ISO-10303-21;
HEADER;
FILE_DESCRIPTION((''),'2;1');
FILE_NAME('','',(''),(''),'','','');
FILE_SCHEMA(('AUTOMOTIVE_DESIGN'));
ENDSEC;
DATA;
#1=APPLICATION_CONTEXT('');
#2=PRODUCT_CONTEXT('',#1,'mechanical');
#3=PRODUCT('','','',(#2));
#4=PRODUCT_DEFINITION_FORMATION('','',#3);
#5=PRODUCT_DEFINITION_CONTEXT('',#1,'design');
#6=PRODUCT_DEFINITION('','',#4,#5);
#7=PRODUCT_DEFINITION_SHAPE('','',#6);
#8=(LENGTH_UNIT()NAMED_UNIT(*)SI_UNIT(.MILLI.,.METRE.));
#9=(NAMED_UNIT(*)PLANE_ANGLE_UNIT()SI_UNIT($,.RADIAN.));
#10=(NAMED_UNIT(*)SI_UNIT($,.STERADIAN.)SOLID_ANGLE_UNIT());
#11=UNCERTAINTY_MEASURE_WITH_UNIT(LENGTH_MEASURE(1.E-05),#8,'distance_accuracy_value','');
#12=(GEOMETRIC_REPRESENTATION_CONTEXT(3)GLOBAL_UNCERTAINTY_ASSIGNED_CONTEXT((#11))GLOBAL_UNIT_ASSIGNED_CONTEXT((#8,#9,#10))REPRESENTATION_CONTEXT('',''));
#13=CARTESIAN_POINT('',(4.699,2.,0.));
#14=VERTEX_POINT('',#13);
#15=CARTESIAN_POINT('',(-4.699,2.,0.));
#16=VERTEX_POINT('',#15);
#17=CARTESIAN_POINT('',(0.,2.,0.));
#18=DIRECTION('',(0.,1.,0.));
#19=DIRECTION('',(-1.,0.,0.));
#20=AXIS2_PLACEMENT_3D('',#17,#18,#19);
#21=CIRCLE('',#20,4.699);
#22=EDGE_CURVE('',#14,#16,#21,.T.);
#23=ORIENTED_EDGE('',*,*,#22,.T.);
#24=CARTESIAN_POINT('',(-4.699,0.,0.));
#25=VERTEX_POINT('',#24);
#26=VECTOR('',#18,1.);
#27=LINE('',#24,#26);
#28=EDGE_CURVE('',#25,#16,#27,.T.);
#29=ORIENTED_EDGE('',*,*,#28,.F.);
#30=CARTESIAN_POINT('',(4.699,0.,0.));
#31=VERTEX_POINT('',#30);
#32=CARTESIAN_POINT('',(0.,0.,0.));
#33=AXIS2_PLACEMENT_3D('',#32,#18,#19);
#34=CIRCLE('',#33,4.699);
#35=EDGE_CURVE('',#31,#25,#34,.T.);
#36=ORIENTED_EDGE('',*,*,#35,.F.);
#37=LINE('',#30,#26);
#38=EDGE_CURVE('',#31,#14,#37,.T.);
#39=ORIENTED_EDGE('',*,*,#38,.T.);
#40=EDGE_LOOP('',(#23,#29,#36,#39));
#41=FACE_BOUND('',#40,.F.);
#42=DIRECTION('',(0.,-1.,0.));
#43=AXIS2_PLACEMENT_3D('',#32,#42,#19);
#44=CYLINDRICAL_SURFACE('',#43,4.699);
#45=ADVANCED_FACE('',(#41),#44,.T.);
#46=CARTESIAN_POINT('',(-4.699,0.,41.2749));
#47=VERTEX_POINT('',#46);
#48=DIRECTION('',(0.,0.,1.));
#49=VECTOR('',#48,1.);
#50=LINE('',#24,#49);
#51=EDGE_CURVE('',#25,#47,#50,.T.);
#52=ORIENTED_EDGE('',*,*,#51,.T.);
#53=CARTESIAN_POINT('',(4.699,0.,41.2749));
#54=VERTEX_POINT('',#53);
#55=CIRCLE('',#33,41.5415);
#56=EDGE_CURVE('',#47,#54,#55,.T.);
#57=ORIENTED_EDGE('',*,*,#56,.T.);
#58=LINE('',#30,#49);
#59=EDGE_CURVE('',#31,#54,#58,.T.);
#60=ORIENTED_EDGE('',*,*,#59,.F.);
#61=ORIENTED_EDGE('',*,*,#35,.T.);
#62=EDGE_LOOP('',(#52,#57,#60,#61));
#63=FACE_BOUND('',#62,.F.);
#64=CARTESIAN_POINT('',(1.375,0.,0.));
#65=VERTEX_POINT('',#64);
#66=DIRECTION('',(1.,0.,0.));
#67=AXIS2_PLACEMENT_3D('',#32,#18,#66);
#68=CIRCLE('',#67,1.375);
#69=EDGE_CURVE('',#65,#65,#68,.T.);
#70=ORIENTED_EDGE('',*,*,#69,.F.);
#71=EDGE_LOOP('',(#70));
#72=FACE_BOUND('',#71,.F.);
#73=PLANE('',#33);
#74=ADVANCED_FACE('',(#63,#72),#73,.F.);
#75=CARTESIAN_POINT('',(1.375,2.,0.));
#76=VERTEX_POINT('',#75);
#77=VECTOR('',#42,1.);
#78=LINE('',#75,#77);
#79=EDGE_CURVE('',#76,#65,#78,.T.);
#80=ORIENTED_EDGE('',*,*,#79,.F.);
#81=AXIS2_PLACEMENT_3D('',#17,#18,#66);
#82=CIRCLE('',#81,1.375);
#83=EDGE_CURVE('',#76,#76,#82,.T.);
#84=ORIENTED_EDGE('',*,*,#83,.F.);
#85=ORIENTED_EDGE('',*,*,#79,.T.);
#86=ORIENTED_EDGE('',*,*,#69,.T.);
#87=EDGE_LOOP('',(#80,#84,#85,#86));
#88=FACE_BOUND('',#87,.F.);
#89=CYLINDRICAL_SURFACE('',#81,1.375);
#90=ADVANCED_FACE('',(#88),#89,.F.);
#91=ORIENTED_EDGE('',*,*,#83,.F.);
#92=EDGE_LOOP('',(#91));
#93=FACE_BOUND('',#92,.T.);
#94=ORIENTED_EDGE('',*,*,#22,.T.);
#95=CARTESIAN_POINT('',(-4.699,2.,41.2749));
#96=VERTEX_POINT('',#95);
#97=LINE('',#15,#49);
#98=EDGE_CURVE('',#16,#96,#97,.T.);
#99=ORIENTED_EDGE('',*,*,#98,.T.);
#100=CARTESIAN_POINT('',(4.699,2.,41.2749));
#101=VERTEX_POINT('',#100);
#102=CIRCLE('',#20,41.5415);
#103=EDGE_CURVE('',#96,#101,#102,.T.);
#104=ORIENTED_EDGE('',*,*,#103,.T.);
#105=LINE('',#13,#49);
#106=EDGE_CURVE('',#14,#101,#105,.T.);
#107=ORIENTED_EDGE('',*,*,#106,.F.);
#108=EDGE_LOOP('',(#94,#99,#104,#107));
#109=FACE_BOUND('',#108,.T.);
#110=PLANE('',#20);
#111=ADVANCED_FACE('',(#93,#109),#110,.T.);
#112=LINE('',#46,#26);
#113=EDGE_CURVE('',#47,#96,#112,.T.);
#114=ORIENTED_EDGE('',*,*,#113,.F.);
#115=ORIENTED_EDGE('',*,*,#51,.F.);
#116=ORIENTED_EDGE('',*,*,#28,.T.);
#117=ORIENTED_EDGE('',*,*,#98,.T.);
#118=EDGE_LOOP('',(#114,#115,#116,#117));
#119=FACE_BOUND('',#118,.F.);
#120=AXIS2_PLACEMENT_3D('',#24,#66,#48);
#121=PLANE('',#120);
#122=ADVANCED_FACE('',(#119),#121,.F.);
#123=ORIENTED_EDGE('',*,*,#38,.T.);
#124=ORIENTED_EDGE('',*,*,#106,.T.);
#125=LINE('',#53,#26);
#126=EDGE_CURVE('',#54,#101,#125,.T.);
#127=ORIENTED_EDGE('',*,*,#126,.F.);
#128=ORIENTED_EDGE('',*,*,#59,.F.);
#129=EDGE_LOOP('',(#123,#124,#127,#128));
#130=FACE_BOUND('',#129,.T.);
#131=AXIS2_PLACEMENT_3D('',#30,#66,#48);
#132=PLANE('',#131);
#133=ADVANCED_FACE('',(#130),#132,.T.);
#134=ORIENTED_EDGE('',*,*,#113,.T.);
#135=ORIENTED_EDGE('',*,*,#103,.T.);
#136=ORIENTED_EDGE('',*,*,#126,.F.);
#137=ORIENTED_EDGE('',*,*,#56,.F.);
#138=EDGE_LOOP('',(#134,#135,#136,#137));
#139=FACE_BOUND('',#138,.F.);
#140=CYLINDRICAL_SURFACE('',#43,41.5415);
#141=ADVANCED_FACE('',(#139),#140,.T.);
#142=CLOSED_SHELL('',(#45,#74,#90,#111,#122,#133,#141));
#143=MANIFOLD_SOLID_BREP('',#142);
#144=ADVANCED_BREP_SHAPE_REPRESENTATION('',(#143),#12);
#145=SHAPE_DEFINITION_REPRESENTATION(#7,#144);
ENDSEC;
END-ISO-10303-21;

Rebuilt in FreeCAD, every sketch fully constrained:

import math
import FreeCAD as App
import Part
import Sketcher
from FreeCAD import Vector
Q = App.Units.Quantity

doc = App.newDocument("Part")
body = doc.addObject("PartDesign::Body", "Body")

sketch1 = body.newObject("Sketcher::SketchObject", "Sketch")
sketch1.AttachmentSupport = (doc.getObject("XZ_Plane"), [""])
sketch1.MapMode = "FlatFace"
sketch1.addGeometry(Part.LineSegment(Vector(-4.7, 0, 0), Vector(-4.7, 41.3, 0)), False)
sketch1.addGeometry(Part.ArcOfCircle(Part.Circle(Vector(0, 0, 0), Vector(0, 0, 1), 41.5), math.radians(83.51), math.radians(96.49)), False)
sketch1.addGeometry(Part.LineSegment(Vector(4.7, 41.3, 0), Vector(4.7, 0, 0)), False)
sketch1.addGeometry(Part.ArcOfCircle(Part.Circle(Vector(0, 0, 0), Vector(0, 0, 1), 4.7), math.radians(180), math.radians(360)), False)
sketch1.addConstraint(Sketcher.Constraint("Coincident", 0, 2, 1, 2))
sketch1.addConstraint(Sketcher.Constraint("Coincident", 1, 1, 2, 1))
sketch1.addConstraint(Sketcher.Constraint("Tangent", 2, 2, 3, 2))
sketch1.addConstraint(Sketcher.Constraint("Tangent", 3, 1, 0, 1))
sketch1.addConstraint(Sketcher.Constraint("Vertical", 0))
sketch1.addConstraint(Sketcher.Constraint("Vertical", 2))
sketch1.addConstraint(Sketcher.Constraint("Coincident", 1, 3, -1, 1))
sketch1.addConstraint(Sketcher.Constraint("Coincident", 3, 3, -1, 1))
sketch1.addConstraint(Sketcher.Constraint("Radius", 3, Q("0.185 in")))
sketch1.addConstraint(Sketcher.Constraint("Radius", 1, Q("1.6355 in")))
pad1 = body.newObject("PartDesign::Pad", "Pad")
pad1.Profile = sketch1
pad1.Length = 2
pad1.Reversed = True

sketch2 = body.newObject("Sketcher::SketchObject", "Sketch001")
sketch2.AttachmentSupport = (doc.getObject("XZ_Plane"), [""])
sketch2.MapMode = "FlatFace"
sketch2.AttachmentOffset = App.Placement(Vector(0, 0, -2), App.Rotation())
sketch2.addGeometry(Part.Circle(Vector(0, 0, 0), Vector(0, 0, 1), 1.4), False)
sketch2.addConstraint(Sketcher.Constraint("Coincident", 0, 3, -1, 1))
sketch2.addConstraint(Sketcher.Constraint("Diameter", 0, Q("2.75 mm")))
pocket1 = body.newObject("PartDesign::Pocket", "Pocket")
pocket1.Profile = sketch2
pocket1.Type = "ThroughAll"
pocket1.Reversed = True

doc.recompute()
